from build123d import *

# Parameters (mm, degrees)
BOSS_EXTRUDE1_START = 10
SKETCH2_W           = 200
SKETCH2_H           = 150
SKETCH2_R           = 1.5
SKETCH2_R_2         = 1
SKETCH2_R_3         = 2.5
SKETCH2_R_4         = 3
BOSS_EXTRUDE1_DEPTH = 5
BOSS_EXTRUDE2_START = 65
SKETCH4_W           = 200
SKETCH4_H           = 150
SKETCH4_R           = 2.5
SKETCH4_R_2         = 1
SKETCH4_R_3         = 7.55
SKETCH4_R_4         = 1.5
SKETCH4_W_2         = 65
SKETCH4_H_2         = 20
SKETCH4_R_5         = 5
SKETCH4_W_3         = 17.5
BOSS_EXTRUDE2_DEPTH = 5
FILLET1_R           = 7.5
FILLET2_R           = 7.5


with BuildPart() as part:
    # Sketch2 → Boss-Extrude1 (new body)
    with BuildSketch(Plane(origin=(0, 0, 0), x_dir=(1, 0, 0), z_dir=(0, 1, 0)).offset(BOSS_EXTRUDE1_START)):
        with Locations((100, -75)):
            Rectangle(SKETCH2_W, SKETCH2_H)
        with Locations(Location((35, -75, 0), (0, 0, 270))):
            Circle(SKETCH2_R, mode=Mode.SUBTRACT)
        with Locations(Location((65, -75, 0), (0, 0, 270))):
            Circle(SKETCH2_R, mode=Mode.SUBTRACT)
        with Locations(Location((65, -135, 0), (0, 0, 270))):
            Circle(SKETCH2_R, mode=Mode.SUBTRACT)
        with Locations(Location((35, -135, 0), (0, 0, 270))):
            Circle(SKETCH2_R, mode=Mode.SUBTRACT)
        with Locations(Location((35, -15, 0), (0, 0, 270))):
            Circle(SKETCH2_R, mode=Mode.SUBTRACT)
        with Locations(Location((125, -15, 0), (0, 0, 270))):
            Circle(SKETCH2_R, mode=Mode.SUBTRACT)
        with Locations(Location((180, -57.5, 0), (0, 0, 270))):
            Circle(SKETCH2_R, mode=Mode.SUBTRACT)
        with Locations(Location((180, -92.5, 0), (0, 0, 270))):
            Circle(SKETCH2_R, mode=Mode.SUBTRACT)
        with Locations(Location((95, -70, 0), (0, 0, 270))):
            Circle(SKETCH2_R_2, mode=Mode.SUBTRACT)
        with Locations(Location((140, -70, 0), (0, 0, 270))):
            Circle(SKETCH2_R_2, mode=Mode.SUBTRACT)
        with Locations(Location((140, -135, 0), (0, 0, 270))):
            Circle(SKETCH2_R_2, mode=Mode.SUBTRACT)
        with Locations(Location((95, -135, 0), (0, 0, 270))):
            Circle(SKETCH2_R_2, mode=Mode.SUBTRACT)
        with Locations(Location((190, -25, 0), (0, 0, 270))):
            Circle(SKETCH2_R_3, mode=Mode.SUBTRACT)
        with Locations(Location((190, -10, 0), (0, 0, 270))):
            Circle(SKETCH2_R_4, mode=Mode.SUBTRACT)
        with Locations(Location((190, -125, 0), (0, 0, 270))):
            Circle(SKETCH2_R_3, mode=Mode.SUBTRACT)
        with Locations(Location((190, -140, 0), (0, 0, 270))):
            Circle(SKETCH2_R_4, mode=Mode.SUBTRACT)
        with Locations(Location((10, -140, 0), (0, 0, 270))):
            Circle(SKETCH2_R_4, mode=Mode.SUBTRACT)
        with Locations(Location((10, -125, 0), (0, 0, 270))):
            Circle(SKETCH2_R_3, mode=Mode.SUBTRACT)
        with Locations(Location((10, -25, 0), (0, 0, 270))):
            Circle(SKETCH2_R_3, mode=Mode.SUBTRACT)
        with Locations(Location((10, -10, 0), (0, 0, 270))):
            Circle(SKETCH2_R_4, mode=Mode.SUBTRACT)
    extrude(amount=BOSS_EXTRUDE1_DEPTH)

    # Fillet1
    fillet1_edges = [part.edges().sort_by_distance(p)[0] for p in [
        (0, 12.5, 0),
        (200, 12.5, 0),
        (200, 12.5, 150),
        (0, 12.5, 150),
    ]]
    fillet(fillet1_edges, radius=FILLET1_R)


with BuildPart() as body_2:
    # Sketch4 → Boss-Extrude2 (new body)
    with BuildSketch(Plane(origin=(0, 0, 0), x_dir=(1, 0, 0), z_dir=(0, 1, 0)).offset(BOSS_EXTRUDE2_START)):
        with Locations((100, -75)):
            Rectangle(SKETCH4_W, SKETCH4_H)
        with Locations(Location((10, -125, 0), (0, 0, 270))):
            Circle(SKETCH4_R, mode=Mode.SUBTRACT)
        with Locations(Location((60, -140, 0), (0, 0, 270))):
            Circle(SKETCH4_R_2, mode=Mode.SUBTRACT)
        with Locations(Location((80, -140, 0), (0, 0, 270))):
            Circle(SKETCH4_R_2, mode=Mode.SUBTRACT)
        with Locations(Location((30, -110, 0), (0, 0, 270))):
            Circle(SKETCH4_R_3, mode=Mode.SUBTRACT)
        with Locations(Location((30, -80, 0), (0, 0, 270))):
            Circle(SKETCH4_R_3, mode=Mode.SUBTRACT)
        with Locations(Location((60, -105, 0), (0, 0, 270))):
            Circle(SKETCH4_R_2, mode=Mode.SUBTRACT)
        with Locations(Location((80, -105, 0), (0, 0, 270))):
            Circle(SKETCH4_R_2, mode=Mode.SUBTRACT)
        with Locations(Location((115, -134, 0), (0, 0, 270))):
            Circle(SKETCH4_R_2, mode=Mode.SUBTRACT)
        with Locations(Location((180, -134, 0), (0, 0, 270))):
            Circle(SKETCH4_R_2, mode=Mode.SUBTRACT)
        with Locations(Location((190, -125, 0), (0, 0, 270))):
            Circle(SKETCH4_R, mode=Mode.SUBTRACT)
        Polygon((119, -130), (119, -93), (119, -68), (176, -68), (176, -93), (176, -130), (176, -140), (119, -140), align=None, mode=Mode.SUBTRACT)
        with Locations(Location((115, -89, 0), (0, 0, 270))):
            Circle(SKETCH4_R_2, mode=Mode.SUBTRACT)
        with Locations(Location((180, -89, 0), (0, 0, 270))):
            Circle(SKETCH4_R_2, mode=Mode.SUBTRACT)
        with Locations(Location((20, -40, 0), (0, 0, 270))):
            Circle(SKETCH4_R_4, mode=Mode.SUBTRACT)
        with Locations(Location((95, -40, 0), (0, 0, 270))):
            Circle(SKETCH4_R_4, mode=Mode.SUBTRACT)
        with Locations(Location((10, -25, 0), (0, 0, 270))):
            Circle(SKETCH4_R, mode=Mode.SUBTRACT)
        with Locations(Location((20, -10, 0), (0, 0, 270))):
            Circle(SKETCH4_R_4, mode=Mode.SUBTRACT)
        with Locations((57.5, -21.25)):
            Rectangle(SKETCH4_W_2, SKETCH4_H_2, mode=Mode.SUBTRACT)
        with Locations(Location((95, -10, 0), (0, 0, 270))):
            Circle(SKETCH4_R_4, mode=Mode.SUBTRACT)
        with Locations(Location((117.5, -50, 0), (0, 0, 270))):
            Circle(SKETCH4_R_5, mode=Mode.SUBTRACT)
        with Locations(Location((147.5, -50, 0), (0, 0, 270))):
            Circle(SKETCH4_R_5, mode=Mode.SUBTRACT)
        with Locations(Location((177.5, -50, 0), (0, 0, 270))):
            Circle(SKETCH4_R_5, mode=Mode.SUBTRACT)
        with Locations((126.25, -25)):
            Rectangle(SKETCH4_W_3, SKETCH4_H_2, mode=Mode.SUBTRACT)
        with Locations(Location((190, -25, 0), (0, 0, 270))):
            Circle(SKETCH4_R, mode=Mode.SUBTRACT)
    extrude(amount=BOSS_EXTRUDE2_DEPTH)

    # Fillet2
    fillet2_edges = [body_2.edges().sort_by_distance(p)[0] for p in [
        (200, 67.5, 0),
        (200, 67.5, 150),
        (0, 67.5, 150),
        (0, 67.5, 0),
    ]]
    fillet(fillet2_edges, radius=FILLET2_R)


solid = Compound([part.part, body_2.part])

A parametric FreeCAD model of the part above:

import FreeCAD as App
import Part
import Sketcher
from FreeCAD import Vector
Q = App.Units.Quantity


def edges_at(feature, points):
    """Names of the edges that pass closest to the given points."""
    edges = feature.Shape.Edges
    near = lambda p: min(range(len(edges)), key=lambda i: edges[i].distToShape(Part.Vertex(*p))[0])
    return sorted({f"Edge{near(p) + 1}" for p in points})


def add_polygon(sketch, points):
    """Adds a closed chain of lines whose ends are joined by coincident constraints."""
    first, n = sketch.GeometryCount, len(points)
    for a, b in zip(points, points[1:] + points[:1]):
        sketch.addGeometry(Part.LineSegment(App.Vector(*a, 0), App.Vector(*b, 0)), False)
    for i in range(n):
        sketch.addConstraint(Sketcher.Constraint("Coincident", first + i, 2, first + (i + 1) % n, 1))

doc = App.newDocument("Part")
body = doc.addObject("PartDesign::Body", "Body")

# Sketch on XZ plane
sketch1 = body.newObject("Sketcher::SketchObject", "Sketch")
sketch1.AttachmentSupport = (doc.getObject("XZ_Plane"), [""])
sketch1.MapMode = "FlatFace"
sketch1.AttachmentOffset = App.Placement(Vector(0, 0, -10), App.Rotation())
add_polygon(sketch1, [(0, 0), (0, 150), (200, 150), (200, 0)])  # lines 0-3
sketch1.addGeometry(Part.Circle(Vector(10, 140, 0), Vector(0, 0, 1), 3), False)  # 4
sketch1.addGeometry(Part.Circle(Vector(35, 135, 0), Vector(0, 0, 1), 1.5), False)  # 5
sketch1.addGeometry(Part.Circle(Vector(10, 125, 0), Vector(0, 0, 1), 2.5), False)  # 6
sketch1.addGeometry(Part.Circle(Vector(65, 135, 0), Vector(0, 0, 1), 1.5), False)  # 7
sketch1.addGeometry(Part.Circle(Vector(95, 135, 0), Vector(0, 0, 1), 1), False)  # 8
sketch1.addGeometry(Part.Circle(Vector(140, 135, 0), Vector(0, 0, 1), 1), False)  # 9
sketch1.addGeometry(Part.Circle(Vector(190, 140, 0), Vector(0, 0, 1), 3), False)  # 10
sketch1.addGeometry(Part.Circle(Vector(190, 125, 0), Vector(0, 0, 1), 2.5), False)  # 11
sketch1.addGeometry(Part.Circle(Vector(180, 92.5, 0), Vector(0, 0, 1), 1.5), False)  # 12
sketch1.addGeometry(Part.Circle(Vector(35, 75, 0), Vector(0, 0, 1), 1.5), False)  # 13
sketch1.addGeometry(Part.Circle(Vector(65, 75, 0), Vector(0, 0, 1), 1.5), False)  # 14
sketch1.addGeometry(Part.Circle(Vector(95, 70, 0), Vector(0, 0, 1), 1), False)  # 15
sketch1.addGeometry(Part.Circle(Vector(10, 25, 0), Vector(0, 0, 1), 2.5), False)  # 16
sketch1.addGeometry(Part.Circle(Vector(10, 10, 0), Vector(0, 0, 1), 3), False)  # 17
sketch1.addGeometry(Part.Circle(Vector(35, 15, 0), Vector(0, 0, 1), 1.5), False)  # 18
sketch1.addGeometry(Part.Circle(Vector(140, 70, 0), Vector(0, 0, 1), 1), False)  # 19
sketch1.addGeometry(Part.Circle(Vector(180, 57.5, 0), Vector(0, 0, 1), 1.5), False)  # 20
sketch1.addGeometry(Part.Circle(Vector(125, 15, 0), Vector(0, 0, 1), 1.5), False)  # 21
sketch1.addGeometry(Part.Circle(Vector(190, 25, 0), Vector(0, 0, 1), 2.5), False)  # 22
sketch1.addGeometry(Part.Circle(Vector(190, 10, 0), Vector(0, 0, 1), 3), False)  # 23
sketch1.addConstraint([
    Sketcher.Constraint("Vertical", 0),
    Sketcher.Constraint("Horizontal", 1),
    Sketcher.Constraint("Vertical", 2),
    Sketcher.Constraint("Horizontal", 3),
    Sketcher.Constraint("Coincident", 3, 2, -1, 1),
    Sketcher.Constraint("Equal", 5, 7),
    Sketcher.Constraint("Equal", 8, 9),
    Sketcher.Constraint("Equal", 4, 10),
    Sketcher.Constraint("Equal", 6, 11),
    Sketcher.Constraint("Equal", 7, 12),
    Sketcher.Constraint("Equal", 12, 13),
    Sketcher.Constraint("Equal", 13, 14),
    Sketcher.Constraint("Equal", 9, 15),
    Sketcher.Constraint("Equal", 11, 16),
    Sketcher.Constraint("Equal", 10, 17),
    Sketcher.Constraint("Equal", 14, 18),
    Sketcher.Constraint("Equal", 15, 19),
    Sketcher.Constraint("Equal", 18, 20),
    Sketcher.Constraint("Equal", 20, 21),
    Sketcher.Constraint("Equal", 16, 22),
    Sketcher.Constraint("Equal", 17, 23),
    Sketcher.Constraint("Horizontal", 5, 3, 7, 3),
    Sketcher.Constraint("Horizontal", 7, 3, 8, 3),
    Sketcher.Constraint("Horizontal", 8, 3, 9, 3),
    Sketcher.Constraint("Horizontal", 4, 3, 10, 3),
    Sketcher.Constraint("Horizontal", 6, 3, 11, 3),
    Sketcher.Constraint("Horizontal", 13, 3, 14, 3),
    Sketcher.Constraint("Horizontal", 15, 3, 19, 3),
    Sketcher.Constraint("Horizontal", 18, 3, 21, 3),
    Sketcher.Constraint("Horizontal", 16, 3, 22, 3),
    Sketcher.Constraint("Horizontal", 17, 3, 23, 3),
    Sketcher.Constraint("Vertical", 4, 3, 6, 3),
    Sketcher.Constraint("Vertical", 10, 3, 11, 3),
    Sketcher.Constraint("Vertical", 5, 3, 13, 3),
    Sketcher.Constraint("Vertical", 7, 3, 14, 3),
    Sketcher.Constraint("Vertical", 8, 3, 15, 3),
    Sketcher.Constraint("Vertical", 6, 3, 16, 3),
    Sketcher.Constraint("Vertical", 16, 3, 17, 3),
    Sketcher.Constraint("Vertical", 13, 3, 18, 3),
    Sketcher.Constraint("Vertical", 9, 3, 19, 3),
    Sketcher.Constraint("Vertical", 12, 3, 20, 3),
    Sketcher.Constraint("Vertical", 11, 3, 22, 3),
    Sketcher.Constraint("Vertical", 22, 3, 23, 3),
    Sketcher.Constraint("Diameter", 4, Q("6 mm")),
    Sketcher.Constraint("Diameter", 5, Q("3 mm")),
    Sketcher.Constraint("Diameter", 6, Q("5 mm")),
    Sketcher.Constraint("Diameter", 8, Q("2 mm")),
    Sketcher.Constraint("DistanceX", 1, 1, 1, 2, Q("200 mm")),
    Sketcher.Constraint("DistanceY", 0, 1, 0, 2, Q("150 mm")),
    Sketcher.Constraint("DistanceX", -1, 1, 4, 3, Q("10 mm")),
    Sketcher.Constraint("DistanceY", -1, 1, 4, 3, Q("140 mm")),
    Sketcher.Constraint("DistanceX", -1, 1, 5, 3, Q("35 mm")),
    Sketcher.Constraint("DistanceY", -1, 1, 5, 3, Q("135 mm")),
    Sketcher.Constraint("DistanceY", -1, 1, 6, 3, Q("125 mm")),
    Sketcher.Constraint("DistanceX", -1, 1, 7, 3, Q("65 mm")),
    Sketcher.Constraint("DistanceX", -1, 1, 8, 3, Q("95 mm")),
    Sketcher.Constraint("DistanceX", -1, 1, 9, 3, Q("140 mm")),
    Sketcher.Constraint("DistanceX", -1, 1, 10, 3, Q("190 mm")),
    Sketcher.Constraint("DistanceX", -1, 1, 12, 3, Q("180 mm")),
    Sketcher.Constraint("DistanceY", -1, 1, 13, 3, Q("75 mm")),
    Sketcher.Constraint("DistanceY", -1, 1, 15, 3, Q("70 mm")),
    Sketcher.Constraint("DistanceY", -1, 1, 16, 3, Q("25 mm")),
    Sketcher.Constraint("DistanceY", -1, 1, 17, 3, Q("10 mm")),
    Sketcher.Constraint("DistanceY", -1, 1, 18, 3, Q("15 mm")),
    Sketcher.Constraint("DistanceX", -1, 1, 21, 3, Q("125 mm")),
    Sketcher.Constraint("DistanceY", 20, 3, 12, 3, Q("35 mm")),
    Sketcher.Constraint("DistanceY", -1, 1, 12, 3, Q("92.5 mm")),
])
pad1 = body.newObject("PartDesign::Pad", "Pad")
pad1.Profile = sketch1
pad1.Length = 5
pad1.Reversed = True
doc.recompute()

fillet = body.newObject("PartDesign::Fillet", "Fillet")
fillet.Base = (pad1, edges_at(pad1, [
    (0, 12.5, 0),
    (200, 12.5, 0),
    (200, 12.5, 150),
    (0, 12.5, 150),
]))
fillet.Radius = 7.5
body2 = doc.addObject("PartDesign::Body", "Body001")

# Sketch on XZ plane
sketch2 = body2.newObject("Sketcher::SketchObject", "Sketch001")
sketch2.AttachmentSupport = (doc.getObject("XZ_Plane001"), [""])
sketch2.MapMode = "FlatFace"
sketch2.AttachmentOffset = App.Placement(Vector(0, 0, -65), App.Rotation())
add_polygon(sketch2, [(0, 0), (0, 150), (200, 150), (200, 0)])  # lines 0-3
sketch2.addGeometry(Part.Circle(Vector(10, 125, 0), Vector(0, 0, 1), 2.5), False)  # 4
sketch2.addGeometry(Part.Circle(Vector(30, 110, 0), Vector(0, 0, 1), 7.55), False)  # 5
sketch2.addGeometry(Part.Circle(Vector(60, 140, 0), Vector(0, 0, 1), 1), False)  # 6
sketch2.addGeometry(Part.Circle(Vector(80, 140, 0), Vector(0, 0, 1), 1), False)  # 7
sketch2.addGeometry(Part.Circle(Vector(30, 80, 0), Vector(0, 0, 1), 7.55), False)  # 8
sketch2.addGeometry(Part.Circle(Vector(60, 105, 0), Vector(0, 0, 1), 1), False)  # 9
sketch2.addGeometry(Part.Circle(Vector(80, 105, 0), Vector(0, 0, 1), 1), False)  # 10
sketch2.addGeometry(Part.Circle(Vector(115, 134, 0), Vector(0, 0, 1), 1), False)  # 11
sketch2.addGeometry(Part.Circle(Vector(180, 134, 0), Vector(0, 0, 1), 1), False)  # 12
sketch2.addGeometry(Part.Circle(Vector(190, 125, 0), Vector(0, 0, 1), 2.5), False)  # 13
sketch2.addGeometry(Part.Circle(Vector(115, 89, 0), Vector(0, 0, 1), 1), False)  # 14
add_polygon(sketch2, [(119, 140), (119, 68), (176, 68), (176, 140)])  # lines 15-18
sketch2.addGeometry(Part.Circle(Vector(180, 89, 0), Vector(0, 0, 1), 1), False)  # 19
sketch2.addGeometry(Part.Circle(Vector(20, 40, 0), Vector(0, 0, 1), 1.5), False)  # 20
sketch2.addGeometry(Part.Circle(Vector(10, 25, 0), Vector(0, 0, 1), 2.5), False)  # 21
sketch2.addGeometry(Part.Circle(Vector(20, 10, 0), Vector(0, 0, 1), 1.5), False)  # 22
sketch2.addGeometry(Part.Circle(Vector(95, 40, 0), Vector(0, 0, 1), 1.5), False)  # 23
add_polygon(sketch2, [(90, 31.25), (25, 31.25), (25, 11.25), (90, 11.25)])  # lines 24-27
sketch2.addGeometry(Part.Circle(Vector(95, 10, 0), Vector(0, 0, 1), 1.5), False)  # 28
sketch2.addGeometry(Part.Circle(Vector(117.5, 50, 0), Vector(0, 0, 1), 5), False)  # 29
sketch2.addGeometry(Part.Circle(Vector(147.5, 50, 0), Vector(0, 0, 1), 5), False)  # 30
sketch2.addGeometry(Part.Circle(Vector(177.5, 50, 0), Vector(0, 0, 1), 5), False)  # 31
add_polygon(sketch2, [(135, 35), (117.5, 35), (117.5, 15), (135, 15)])  # lines 32-35
sketch2.addGeometry(Part.Circle(Vector(190, 25, 0), Vector(0, 0, 1), 2.5), False)  # 36
sketch2.addConstraint([
    Sketcher.Constraint("Vertical", 0),
    Sketcher.Constraint("Horizontal", 1),
    Sketcher.Constraint("Vertical", 2),
    Sketcher.Constraint("Horizontal", 3),
    Sketcher.Constraint("Vertical", 15),
    Sketcher.Constraint("Horizontal", 16),
    Sketcher.Constraint("Vertical", 17),
    Sketcher.Constraint("Horizontal", 18),
    Sketcher.Constraint("Horizontal", 24),
    Sketcher.Constraint("Vertical", 25),
    Sketcher.Constraint("Horizontal", 26),
    Sketcher.Constraint("Vertical", 27),
    Sketcher.Constraint("Horizontal", 32),
    Sketcher.Constraint("Vertical", 33),
    Sketcher.Constraint("Horizontal", 34),
    Sketcher.Constraint("Vertical", 35),
    Sketcher.Constraint("Coincident", 3, 2, -1, 1),
    Sketcher.Constraint("Equal", 6, 7),
    Sketcher.Constraint("Equal", 5, 8),
    Sketcher.Constraint("Equal", 7, 9),
    Sketcher.Constraint("Equal", 9, 10),
    Sketcher.Constraint("Equal", 10, 11),
    Sketcher.Constraint("Equal", 11, 12),
    Sketcher.Constraint("Equal", 4, 13),
    Sketcher.Constraint("Equal", 12, 14),
    Sketcher.Constraint("Equal", 14, 19),
    Sketcher.Constraint("Equal", 13, 21),
    Sketcher.Constraint("Equal", 20, 22),
    Sketcher.Constraint("Equal", 22, 23),
    Sketcher.Constraint("Equal", 23, 28),
    Sketcher.Constraint("Equal", 29, 30),
    Sketcher.Constraint("Equal", 30, 31),
    Sketcher.Constraint("Equal", 21, 36),
    Sketcher.Constraint("Horizontal", 6, 3, 7, 3),
    Sketcher.Constraint("Horizontal", 9, 3, 10, 3),
    Sketcher.Constraint("Horizontal", 11, 3, 12, 3),
    Sketcher.Constraint("Horizontal", 4, 3, 13, 3),
    Sketcher.Constraint("Horizontal", 14, 3, 19, 3),
    Sketcher.Constraint("Horizontal", 20, 3, 23, 3),
    Sketcher.Constraint("Horizontal", 22, 3, 28, 3),
    Sketcher.Constraint("Horizontal", 29, 3, 30, 3),
    Sketcher.Constraint("Horizontal", 30, 3, 31, 3),
    Sketcher.Constraint("Horizontal", 21, 3, 36, 3),
    Sketcher.Constraint("Horizontal", 7, 3, 17, 2),
    Sketcher.Constraint("Vertical", 5, 3, 8, 3),
    Sketcher.Constraint("Vertical", 6, 3, 9, 3),
    Sketcher.Constraint("Vertical", 7, 3, 10, 3),
    Sketcher.Constraint("Vertical", 11, 3, 14, 3),
    Sketcher.Constraint("Vertical", 12, 3, 19, 3),
    Sketcher.Constraint("Vertical", 4, 3, 21, 3),
    Sketcher.Constraint("Vertical", 20, 3, 22, 3),
    Sketcher.Constraint("Vertical", 23, 3, 28, 3),
    Sketcher.Constraint("Vertical", 13, 3, 36, 3),
    Sketcher.Constraint("Vertical", 29, 3, 32, 2),
    Sketcher.Constraint("Equal", 27, 33),
    Sketcher.Constraint("Diameter", 4, Q("5 mm")),
    Sketcher.Constraint("Diameter", 6, Q("2 mm")),
    Sketcher.Constraint("Diameter", 20, Q("3 mm")),
    Sketcher.Constraint("Diameter", 29, Q("10 mm")),
    Sketcher.Constraint("Diameter", 5, Q("15.1 mm")),
    Sketcher.Constraint("DistanceX", 1, 1, 1, 2, Q("200 mm")),
    Sketcher.Constraint("DistanceX", 16, 1, 16, 2, Q("57 mm")),
    Sketcher.Constraint("DistanceX", 24, 2, 24, 1, Q("65 mm")),
    Sketcher.Constraint("DistanceY", 0, 1, 0, 2, Q("150 mm")),
    Sketcher.Constraint("DistanceY", 15, 2, 15, 1, Q("72 mm")),
    Sketcher.Constraint("DistanceY", 25, 2, 25, 1, Q("20 mm")),
    Sketcher.Constraint("DistanceX", 32, 2, 32, 1, Q("17.5 mm")),
    Sketcher.Constraint("DistanceX", -1, 1, 4, 3, Q("10 mm")),
    Sketcher.Constraint("DistanceY", -1, 1, 4, 3, Q("125 mm")),
    Sketcher.Constraint("DistanceX", -1, 1, 5, 3, Q("30 mm")),
    Sketcher.Constraint("DistanceY", -1, 1, 5, 3, Q("110 mm")),
    Sketcher.Constraint("DistanceX", -1, 1, 6, 3, Q("60 mm")),
    Sketcher.Constraint("DistanceY", -1, 1, 6, 3, Q("140 mm")),
    Sketcher.Constraint("DistanceX", -1, 1, 7, 3, Q("80 mm")),
    Sketcher.Constraint("DistanceY", -1, 1, 8, 3, Q("80 mm")),
    Sketcher.Constraint("DistanceY", -1, 1, 9, 3, Q("105 mm")),
    Sketcher.Constraint("DistanceX", -1, 1, 11, 3, Q("115 mm")),
    Sketcher.Constraint("DistanceY", -1, 1, 11, 3, Q("134 mm")),
    Sketcher.Constraint("DistanceX", -1, 1, 12, 3, Q("180 mm")),
    Sketcher.Constraint("DistanceX", -1, 1, 13, 3, Q("190 mm")),
    Sketcher.Constraint("DistanceY", -1, 1, 14, 3, Q("89 mm")),
    Sketcher.Constraint("DistanceX", -1, 1, 20, 3, Q("20 mm")),
    Sketcher.Constraint("DistanceY", -1, 1, 20, 3, Q("40 mm")),
    Sketcher.Constraint("DistanceY", -1, 1, 21, 3, Q("25 mm")),
    Sketcher.Constraint("DistanceY", -1, 1, 22, 3, Q("10 mm")),
    Sketcher.Constraint("DistanceX", -1, 1, 23, 3, Q("95 mm")),
    Sketcher.Constraint("DistanceY", -1, 1, 29, 3, Q("50 mm")),
    Sketcher.Constraint("DistanceX", -1, 1, 15, 2, Q("119 mm")),
    Sketcher.Constraint("DistanceX", -1, 1, 24, 2, Q("25 mm")),
    Sketcher.Constraint("DistanceY", -1, 1, 32, 2, Q("35 mm")),
    Sketcher.Constraint("DistanceX", -1, 1, 34, 2, Q("135 mm")),
    Sketcher.Constraint("DistanceX", 29, 3, 30, 3, Q("30 mm")),
    Sketcher.Constraint("DistanceX", 30, 3, 31, 3, Q("30 mm")),
    Sketcher.Constraint("DistanceY", -1, 1, 24, 2, Q("31.25 mm")),
])
pad2 = body2.newObject("PartDesign::Pad", "Pad001")
pad2.Profile = sketch2
pad2.Length = 5
pad2.Reversed = True
doc.recompute()

fillet2 = body2.newObject("PartDesign::Fillet", "Fillet001")
fillet2.Base = (pad2, edges_at(pad2, [
    (200, 67.5, 0),
    (200, 67.5, 150),
    (0, 67.5, 150),
    (0, 67.5, 0),
]))
fillet2.Radius = 7.5

doc.recompute()
